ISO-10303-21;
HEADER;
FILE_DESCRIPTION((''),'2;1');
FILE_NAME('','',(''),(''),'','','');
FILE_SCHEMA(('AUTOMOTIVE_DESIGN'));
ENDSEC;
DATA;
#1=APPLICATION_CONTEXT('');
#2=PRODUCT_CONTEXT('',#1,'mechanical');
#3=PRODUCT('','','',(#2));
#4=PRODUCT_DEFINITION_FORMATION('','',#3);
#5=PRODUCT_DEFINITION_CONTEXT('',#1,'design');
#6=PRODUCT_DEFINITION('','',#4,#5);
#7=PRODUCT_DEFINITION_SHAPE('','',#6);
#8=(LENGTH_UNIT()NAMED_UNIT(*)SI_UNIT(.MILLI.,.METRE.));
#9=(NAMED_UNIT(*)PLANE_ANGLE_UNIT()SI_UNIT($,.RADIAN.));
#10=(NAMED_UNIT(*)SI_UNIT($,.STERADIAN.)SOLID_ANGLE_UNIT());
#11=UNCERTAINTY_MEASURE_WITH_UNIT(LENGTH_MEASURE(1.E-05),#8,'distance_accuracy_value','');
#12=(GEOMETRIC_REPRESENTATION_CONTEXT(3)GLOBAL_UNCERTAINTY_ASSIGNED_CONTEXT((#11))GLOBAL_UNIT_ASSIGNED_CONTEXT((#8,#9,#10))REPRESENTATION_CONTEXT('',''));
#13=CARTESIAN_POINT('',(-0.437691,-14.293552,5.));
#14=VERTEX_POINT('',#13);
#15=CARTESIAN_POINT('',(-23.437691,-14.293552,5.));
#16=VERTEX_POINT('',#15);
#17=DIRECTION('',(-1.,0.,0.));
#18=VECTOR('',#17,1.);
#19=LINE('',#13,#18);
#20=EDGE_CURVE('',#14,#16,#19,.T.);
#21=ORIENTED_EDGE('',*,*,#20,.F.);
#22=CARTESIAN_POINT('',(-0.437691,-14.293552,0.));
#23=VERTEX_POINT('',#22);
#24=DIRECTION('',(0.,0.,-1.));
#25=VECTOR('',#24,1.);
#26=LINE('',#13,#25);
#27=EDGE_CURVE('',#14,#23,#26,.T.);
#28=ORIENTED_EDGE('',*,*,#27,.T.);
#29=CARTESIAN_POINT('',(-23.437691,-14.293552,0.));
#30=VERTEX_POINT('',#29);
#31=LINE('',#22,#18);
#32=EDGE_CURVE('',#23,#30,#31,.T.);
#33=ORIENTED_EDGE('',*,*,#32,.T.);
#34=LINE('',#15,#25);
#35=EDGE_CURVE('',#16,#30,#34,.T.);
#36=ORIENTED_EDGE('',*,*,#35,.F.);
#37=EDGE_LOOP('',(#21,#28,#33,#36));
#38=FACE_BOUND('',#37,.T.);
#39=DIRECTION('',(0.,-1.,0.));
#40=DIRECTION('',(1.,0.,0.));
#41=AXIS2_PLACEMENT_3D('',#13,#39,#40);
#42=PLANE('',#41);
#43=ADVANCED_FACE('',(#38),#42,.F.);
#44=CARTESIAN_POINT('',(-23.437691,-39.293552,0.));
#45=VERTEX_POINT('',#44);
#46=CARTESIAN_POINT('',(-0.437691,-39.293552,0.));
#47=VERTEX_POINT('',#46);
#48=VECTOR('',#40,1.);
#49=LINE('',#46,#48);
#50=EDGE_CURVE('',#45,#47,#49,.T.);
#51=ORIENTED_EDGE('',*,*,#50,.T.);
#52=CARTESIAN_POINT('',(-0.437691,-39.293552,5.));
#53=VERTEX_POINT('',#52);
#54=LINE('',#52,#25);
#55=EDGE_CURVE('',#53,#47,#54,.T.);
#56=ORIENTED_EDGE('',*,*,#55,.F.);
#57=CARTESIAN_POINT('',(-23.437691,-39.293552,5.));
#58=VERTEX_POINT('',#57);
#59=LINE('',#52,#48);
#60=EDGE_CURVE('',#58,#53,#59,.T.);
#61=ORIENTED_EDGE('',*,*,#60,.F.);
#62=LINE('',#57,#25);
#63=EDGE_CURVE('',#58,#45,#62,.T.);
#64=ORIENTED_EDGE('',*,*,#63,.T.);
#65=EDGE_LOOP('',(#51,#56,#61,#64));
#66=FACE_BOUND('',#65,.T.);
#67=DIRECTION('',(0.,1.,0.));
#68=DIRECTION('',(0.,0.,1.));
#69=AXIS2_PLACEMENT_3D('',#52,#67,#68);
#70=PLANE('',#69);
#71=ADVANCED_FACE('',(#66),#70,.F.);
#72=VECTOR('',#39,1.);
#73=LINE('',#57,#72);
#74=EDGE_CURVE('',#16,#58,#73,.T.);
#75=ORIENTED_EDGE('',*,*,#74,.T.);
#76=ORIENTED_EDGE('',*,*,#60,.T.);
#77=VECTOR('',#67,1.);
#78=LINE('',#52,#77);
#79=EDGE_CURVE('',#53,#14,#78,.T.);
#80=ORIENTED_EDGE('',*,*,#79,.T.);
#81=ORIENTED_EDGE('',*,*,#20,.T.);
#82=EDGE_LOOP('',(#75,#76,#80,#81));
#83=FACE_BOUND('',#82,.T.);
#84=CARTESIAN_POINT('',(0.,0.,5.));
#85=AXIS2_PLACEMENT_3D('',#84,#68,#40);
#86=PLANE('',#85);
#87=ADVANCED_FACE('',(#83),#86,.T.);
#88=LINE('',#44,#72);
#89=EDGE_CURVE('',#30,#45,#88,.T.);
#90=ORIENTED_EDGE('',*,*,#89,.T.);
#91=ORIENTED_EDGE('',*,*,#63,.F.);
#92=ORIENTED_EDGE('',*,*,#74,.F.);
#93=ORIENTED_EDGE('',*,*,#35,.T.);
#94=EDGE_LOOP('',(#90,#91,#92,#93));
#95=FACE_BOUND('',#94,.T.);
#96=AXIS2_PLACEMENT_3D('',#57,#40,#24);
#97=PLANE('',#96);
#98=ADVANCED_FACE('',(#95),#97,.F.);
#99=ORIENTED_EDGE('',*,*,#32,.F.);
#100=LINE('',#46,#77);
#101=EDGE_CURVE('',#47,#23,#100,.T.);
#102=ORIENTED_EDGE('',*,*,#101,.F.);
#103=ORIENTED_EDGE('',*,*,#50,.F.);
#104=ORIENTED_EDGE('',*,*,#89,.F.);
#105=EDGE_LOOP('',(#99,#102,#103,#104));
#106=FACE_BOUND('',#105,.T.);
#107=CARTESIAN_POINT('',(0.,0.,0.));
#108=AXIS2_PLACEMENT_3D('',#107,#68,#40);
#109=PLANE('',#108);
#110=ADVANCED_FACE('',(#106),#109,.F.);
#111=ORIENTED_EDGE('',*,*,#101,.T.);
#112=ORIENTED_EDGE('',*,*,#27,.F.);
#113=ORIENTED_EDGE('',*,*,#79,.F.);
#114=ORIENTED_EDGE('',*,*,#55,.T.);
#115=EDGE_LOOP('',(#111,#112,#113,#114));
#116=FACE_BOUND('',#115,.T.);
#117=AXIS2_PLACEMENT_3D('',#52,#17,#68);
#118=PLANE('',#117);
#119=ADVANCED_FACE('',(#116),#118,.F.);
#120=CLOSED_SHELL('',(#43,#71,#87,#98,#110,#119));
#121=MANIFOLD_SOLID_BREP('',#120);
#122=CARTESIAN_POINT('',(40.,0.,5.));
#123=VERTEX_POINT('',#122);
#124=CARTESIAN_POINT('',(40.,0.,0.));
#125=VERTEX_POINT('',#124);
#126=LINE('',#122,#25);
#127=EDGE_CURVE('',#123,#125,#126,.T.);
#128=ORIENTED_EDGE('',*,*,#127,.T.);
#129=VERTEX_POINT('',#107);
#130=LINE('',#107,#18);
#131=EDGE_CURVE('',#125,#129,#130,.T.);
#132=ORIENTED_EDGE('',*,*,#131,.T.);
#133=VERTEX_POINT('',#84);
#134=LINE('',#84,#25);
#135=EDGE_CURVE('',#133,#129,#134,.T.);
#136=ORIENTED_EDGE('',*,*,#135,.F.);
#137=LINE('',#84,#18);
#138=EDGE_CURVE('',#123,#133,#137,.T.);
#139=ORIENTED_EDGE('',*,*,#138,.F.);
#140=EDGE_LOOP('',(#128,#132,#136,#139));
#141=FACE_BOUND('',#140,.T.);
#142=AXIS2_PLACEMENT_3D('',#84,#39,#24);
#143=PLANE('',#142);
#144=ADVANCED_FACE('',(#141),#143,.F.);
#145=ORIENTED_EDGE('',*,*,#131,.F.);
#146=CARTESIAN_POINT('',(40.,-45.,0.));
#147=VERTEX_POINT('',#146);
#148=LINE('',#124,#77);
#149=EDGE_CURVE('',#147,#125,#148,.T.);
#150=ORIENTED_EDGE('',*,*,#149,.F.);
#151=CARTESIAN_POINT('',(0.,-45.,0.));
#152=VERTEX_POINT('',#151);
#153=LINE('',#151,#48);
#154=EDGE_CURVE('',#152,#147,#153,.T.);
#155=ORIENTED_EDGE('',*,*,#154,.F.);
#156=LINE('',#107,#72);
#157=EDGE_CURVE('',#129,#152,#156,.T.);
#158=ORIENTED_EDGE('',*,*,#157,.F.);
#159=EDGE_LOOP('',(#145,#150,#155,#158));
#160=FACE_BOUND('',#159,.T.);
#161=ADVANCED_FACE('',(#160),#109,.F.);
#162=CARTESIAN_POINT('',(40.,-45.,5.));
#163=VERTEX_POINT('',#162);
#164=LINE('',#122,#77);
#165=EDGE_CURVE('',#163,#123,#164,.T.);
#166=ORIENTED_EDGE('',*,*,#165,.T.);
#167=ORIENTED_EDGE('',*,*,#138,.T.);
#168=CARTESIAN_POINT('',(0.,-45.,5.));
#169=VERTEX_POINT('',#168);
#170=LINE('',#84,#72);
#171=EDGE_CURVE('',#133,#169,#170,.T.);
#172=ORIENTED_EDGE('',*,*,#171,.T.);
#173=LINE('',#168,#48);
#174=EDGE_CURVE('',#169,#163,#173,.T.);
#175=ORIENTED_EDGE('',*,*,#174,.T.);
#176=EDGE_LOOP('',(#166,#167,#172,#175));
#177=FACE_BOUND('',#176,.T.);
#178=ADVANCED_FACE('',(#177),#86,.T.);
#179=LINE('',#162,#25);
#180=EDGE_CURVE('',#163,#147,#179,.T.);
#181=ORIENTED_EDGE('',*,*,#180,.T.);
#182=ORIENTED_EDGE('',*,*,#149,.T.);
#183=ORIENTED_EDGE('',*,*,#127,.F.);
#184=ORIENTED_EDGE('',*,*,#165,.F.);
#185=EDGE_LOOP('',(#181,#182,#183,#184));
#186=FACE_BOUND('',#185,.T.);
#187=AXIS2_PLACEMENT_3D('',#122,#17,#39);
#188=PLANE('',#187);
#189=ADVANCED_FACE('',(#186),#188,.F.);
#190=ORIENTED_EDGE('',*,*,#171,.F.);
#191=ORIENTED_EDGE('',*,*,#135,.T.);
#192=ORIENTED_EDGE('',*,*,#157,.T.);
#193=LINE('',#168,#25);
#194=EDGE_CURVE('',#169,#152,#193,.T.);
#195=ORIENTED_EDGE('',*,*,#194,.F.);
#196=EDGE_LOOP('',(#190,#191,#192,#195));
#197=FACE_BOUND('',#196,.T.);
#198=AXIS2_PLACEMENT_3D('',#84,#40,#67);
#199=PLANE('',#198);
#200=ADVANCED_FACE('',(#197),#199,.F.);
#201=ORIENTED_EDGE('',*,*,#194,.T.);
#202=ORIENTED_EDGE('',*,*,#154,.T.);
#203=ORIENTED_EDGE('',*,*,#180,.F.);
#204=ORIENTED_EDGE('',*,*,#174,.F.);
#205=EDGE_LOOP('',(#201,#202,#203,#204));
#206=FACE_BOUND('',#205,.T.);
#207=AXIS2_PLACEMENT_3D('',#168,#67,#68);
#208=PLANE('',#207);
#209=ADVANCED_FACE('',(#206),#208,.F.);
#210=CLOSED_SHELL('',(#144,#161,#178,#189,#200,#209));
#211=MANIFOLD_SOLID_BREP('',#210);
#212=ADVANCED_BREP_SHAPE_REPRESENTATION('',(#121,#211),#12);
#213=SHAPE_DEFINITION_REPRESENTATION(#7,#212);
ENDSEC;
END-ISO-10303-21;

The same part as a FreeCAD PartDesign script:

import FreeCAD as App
import Part
import Sketcher

doc = App.newDocument("Part")
body = doc.addObject("PartDesign::Body", "Body")

sketch1 = body.newObject("Sketcher::SketchObject", "Sketch")
sketch1.AttachmentSupport = (doc.getObject("XY_Plane"), [""])
sketch1.MapMode = "FlatFace"
sketch1.addGeometry([
    Part.LineSegment(App.Vector(0, 0, 0), App.Vector(0, -45, 0)),
    Part.LineSegment(App.Vector(0, -45, 0), App.Vector(40, -45, 0)),
    Part.LineSegment(App.Vector(40, -45, 0), App.Vector(40, 0, 0)),
    Part.LineSegment(App.Vector(40, 0, 0), App.Vector(0, 0, 0)),
], False)
sketch1.addConstraint([
    Sketcher.Constraint("Coincident", 0, 2, 1, 1),
    Sketcher.Constraint("Coincident", 1, 2, 2, 1),
    Sketcher.Constraint("Coincident", 2, 2, 3, 1),
    Sketcher.Constraint("Coincident", 3, 2, 0, 1),
    Sketcher.Constraint("Vertical", 0),
    Sketcher.Constraint("Horizontal", 1),
    Sketcher.Constraint("Vertical", 2),
    Sketcher.Constraint("Horizontal", 3),
    Sketcher.Constraint("Coincident", 3, 2, -1, 1),
    Sketcher.Constraint("DistanceX", 1, 1, 1, 2, 40.0),
    Sketcher.Constraint("DistanceY", 0, 2, 0, 1, 45.0),
])
pad1 = body.newObject("PartDesign::Pad", "Pad")
pad1.Profile = sketch1
pad1.Length = 5
body2 = doc.addObject("PartDesign::Body", "Body001")

sketch2 = body2.newObject("Sketcher::SketchObject", "Sketch001")
sketch2.AttachmentSupport = (doc.getObject("XY_Plane001"), [""])
sketch2.MapMode = "FlatFace"
sketch2.addGeometry([
    Part.LineSegment(App.Vector(-23, -14, 0), App.Vector(-23, -39, 0)),
    Part.LineSegment(App.Vector(-23, -39, 0), App.Vector(0, -39, 0)),
    Part.LineSegment(App.Vector(0, -39, 0), App.Vector(0, -14, 0)),
    Part.LineSegment(App.Vector(0, -14, 0), App.Vector(-23, -14, 0)),
], False)
sketch2.addConstraint([
    Sketcher.Constraint("Coincident", 0, 2, 1, 1),
    Sketcher.Constraint("Coincident", 1, 2, 2, 1),
    Sketcher.Constraint("Coincident", 2, 2, 3, 1),
    Sketcher.Constraint("Coincident", 3, 2, 0, 1),
    Sketcher.Constraint("Vertical", 0),
    Sketcher.Constraint("Horizontal", 1),
    Sketcher.Constraint("Vertical", 2),
    Sketcher.Constraint("Horizontal", 3),
    Sketcher.Constraint("DistanceX", 1, 1, 1, 2, 23.0),
    Sketcher.Constraint("DistanceY", 0, 2, 0, 1, 25.0),
    Sketcher.Constraint("DistanceX", 0, 2, -1, 1, 23.437691),
    Sketcher.Constraint("DistanceY", 0, 2, -1, 1, 39.293552),
])
pad2 = body2.newObject("PartDesign::Pad", "Pad001")
pad2.Profile = sketch2
pad2.Length = 5

doc.recompute()
